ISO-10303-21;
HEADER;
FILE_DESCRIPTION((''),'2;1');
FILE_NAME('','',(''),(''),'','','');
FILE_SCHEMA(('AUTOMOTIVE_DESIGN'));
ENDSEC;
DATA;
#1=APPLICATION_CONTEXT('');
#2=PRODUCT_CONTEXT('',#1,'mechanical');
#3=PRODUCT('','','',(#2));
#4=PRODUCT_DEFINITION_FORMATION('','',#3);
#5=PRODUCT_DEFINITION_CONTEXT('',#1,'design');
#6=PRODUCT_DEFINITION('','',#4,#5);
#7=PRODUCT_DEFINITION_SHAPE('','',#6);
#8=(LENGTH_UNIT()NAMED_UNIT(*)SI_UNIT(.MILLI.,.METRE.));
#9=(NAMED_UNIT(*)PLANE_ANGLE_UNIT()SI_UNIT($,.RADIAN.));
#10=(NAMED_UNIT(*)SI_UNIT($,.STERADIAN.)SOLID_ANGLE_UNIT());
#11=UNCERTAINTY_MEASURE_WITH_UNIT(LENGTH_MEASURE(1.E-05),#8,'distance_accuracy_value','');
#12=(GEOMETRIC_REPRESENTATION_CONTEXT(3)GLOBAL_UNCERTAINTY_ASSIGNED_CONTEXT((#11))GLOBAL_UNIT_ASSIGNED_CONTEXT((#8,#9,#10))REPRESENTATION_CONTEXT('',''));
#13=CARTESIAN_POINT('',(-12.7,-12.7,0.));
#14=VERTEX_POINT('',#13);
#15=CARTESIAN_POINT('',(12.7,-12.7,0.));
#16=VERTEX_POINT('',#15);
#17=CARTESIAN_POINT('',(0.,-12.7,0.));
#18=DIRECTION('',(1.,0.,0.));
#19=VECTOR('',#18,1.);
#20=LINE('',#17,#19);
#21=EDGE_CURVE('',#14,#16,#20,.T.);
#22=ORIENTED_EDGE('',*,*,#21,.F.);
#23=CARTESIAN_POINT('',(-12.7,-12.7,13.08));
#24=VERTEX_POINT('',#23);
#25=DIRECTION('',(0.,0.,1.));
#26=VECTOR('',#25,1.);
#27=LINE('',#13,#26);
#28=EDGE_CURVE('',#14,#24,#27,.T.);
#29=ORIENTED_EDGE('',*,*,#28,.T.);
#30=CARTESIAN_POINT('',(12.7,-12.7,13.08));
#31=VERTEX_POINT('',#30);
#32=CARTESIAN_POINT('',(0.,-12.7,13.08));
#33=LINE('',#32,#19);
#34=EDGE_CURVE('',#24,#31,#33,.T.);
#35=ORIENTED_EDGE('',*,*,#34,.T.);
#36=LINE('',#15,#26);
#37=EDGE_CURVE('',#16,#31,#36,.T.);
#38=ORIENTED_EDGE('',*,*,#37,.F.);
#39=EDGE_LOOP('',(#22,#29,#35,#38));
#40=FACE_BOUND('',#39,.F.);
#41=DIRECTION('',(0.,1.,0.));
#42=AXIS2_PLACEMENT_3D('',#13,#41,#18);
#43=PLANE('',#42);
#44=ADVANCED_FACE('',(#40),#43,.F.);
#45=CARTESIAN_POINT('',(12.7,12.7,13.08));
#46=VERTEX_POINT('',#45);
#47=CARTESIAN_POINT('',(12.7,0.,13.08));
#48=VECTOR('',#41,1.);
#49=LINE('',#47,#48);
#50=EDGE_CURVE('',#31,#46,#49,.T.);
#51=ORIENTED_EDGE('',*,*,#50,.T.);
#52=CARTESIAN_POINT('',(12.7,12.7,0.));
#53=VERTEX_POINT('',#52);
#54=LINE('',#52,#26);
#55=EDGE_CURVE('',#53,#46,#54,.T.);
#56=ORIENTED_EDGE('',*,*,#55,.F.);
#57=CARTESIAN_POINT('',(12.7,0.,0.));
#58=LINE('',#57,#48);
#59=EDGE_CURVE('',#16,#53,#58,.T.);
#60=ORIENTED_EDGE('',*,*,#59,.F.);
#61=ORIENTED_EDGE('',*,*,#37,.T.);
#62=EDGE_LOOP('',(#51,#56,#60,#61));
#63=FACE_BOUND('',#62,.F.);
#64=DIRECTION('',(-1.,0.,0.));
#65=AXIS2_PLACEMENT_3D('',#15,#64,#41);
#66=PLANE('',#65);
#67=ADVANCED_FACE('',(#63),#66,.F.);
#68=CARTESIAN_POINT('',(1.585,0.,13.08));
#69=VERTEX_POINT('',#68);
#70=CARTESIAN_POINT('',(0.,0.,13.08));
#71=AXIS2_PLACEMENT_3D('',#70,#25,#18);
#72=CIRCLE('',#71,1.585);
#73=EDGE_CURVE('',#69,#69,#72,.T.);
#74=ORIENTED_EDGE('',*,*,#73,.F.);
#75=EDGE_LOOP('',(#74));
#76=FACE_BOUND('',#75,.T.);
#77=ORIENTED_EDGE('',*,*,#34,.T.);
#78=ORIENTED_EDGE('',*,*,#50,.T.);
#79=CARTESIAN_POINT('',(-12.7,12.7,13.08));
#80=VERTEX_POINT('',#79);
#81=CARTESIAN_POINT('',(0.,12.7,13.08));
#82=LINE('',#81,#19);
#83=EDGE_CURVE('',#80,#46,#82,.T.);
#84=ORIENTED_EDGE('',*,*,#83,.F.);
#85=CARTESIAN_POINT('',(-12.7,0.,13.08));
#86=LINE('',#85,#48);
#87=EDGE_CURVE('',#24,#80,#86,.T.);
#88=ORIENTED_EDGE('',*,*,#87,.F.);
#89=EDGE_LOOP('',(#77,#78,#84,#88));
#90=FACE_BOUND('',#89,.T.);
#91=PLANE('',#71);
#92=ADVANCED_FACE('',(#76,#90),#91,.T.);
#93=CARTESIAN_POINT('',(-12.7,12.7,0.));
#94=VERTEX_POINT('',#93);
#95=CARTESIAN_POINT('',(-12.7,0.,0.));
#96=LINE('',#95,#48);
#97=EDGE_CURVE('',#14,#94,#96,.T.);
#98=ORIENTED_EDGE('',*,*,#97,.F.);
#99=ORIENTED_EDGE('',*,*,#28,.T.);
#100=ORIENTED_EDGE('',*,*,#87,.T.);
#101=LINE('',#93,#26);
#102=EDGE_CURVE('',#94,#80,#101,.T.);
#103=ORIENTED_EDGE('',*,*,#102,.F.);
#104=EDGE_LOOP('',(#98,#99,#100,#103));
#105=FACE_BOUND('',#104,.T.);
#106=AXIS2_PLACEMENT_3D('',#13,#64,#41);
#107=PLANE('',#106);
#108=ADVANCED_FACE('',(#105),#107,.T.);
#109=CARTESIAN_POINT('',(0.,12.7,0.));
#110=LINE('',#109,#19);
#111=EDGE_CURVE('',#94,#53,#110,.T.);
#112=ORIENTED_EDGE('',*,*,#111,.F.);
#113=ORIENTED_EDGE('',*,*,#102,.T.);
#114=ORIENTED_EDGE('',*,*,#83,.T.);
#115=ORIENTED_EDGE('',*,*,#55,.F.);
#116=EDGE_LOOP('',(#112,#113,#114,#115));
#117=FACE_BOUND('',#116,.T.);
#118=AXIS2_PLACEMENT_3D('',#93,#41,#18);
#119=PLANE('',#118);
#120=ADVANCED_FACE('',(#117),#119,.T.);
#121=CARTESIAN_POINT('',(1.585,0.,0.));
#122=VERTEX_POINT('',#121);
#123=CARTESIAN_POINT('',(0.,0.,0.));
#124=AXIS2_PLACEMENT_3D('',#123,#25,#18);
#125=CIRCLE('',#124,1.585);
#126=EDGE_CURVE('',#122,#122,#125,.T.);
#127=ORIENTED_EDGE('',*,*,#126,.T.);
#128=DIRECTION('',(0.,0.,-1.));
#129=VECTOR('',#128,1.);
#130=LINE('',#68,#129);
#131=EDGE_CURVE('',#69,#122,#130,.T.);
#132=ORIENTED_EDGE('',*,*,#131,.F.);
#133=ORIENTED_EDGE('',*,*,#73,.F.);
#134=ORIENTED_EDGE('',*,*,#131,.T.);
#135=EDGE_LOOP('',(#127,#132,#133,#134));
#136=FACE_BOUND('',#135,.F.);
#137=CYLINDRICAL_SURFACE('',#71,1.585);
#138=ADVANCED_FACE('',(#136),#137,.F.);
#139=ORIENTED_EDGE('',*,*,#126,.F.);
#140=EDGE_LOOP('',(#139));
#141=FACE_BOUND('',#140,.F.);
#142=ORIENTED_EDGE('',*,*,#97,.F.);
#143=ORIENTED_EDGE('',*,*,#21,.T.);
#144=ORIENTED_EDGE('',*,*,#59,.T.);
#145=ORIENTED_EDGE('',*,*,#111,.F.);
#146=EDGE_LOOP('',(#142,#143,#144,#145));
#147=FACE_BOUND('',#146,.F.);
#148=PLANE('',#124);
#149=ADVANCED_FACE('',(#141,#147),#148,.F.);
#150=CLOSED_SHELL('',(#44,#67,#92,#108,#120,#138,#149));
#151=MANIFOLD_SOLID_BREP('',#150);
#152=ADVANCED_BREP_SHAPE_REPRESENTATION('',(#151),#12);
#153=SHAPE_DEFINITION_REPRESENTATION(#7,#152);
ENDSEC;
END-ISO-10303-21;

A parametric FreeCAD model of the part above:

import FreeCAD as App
import Part
import Sketcher

V = App.Vector
Q = App.Units.Quantity

doc = App.newDocument("Part")
params = doc.addObject("Spreadsheet::Sheet", "Params")
for row, (alias, value) in enumerate([
    ("sketch1_width", "1 in"),
    ("pad1_length", "13.08 mm"),
], start=1):
    params.set(f"A{row}", alias)
    params.set(f"B{row}", "=" + value)
    params.setAlias(f"B{row}", alias)

body = doc.addObject("PartDesign::Body", "Body")

# Sketch on XY plane
sketch1 = doc.addObject("Sketcher::SketchObject", "Sketch")
body.addObject(sketch1)
sketch1.AttachmentSupport = (doc.XY_Plane, [""])
sketch1.MapMode = "FlatFace"
sketch1.addGeometry([
    Part.LineSegment(V(-13, 13, 0), V(-13, -13, 0)),
    Part.LineSegment(V(-13, -13, 0), V(13, -13, 0)),
    Part.LineSegment(V(13, -13, 0), V(13, 13, 0)),
    Part.LineSegment(V(13, 13, 0), V(-13, 13, 0)),
], False)
sketch1.addConstraint([
    Sketcher.Constraint("Coincident", 0, 2, 1, 1),
    Sketcher.Constraint("Coincident", 1, 2, 2, 1),
    Sketcher.Constraint("Coincident", 2, 2, 3, 1),
    Sketcher.Constraint("Coincident", 3, 2, 0, 1),
    Sketcher.Constraint("Vertical", 0),
    Sketcher.Constraint("Horizontal", 1),
    Sketcher.Constraint("Vertical", 2),
    Sketcher.Constraint("Horizontal", 3),
    Sketcher.Constraint("Symmetric", 0, 2, 2, 2, -1, 1),
    Sketcher.Constraint("Equal", 3, 0),
    Sketcher.Constraint("DistanceX", 1, 1, 1, 2, Q("1 in")),
])
sketch1.setExpression("Constraints[10]", "Params.sketch1_width")
pad1 = doc.addObject("PartDesign::Pad", "Pad")
body.addObject(pad1)
pad1.Profile = sketch1
pad1.setExpression("Length", "Params.pad1_length")

# Sketch on XY plane
sketch2 = doc.addObject("Sketcher::SketchObject", "Sketch001")
body.addObject(sketch2)
sketch2.AttachmentSupport = (doc.XY_Plane, [""])
sketch2.MapMode = "FlatFace"
sketch2.AttachmentOffset = App.Placement(V(0, 0, 13.08), App.Rotation())
sketch2.addGeometry(Part.Circle(V(0, 0, 0), V(0, 0, 1), 1.6), False)
sketch2.addConstraint([
    Sketcher.Constraint("Coincident", 0, 3, -1, 1),
    Sketcher.Constraint("Diameter", 0, Q("3.17 mm")),
])
pocket1 = doc.addObject("PartDesign::Pocket", "Pocket")
body.addObject(pocket1)
pocket1.Profile = sketch2
pocket1.Type = "ThroughAll"

doc.recompute()
